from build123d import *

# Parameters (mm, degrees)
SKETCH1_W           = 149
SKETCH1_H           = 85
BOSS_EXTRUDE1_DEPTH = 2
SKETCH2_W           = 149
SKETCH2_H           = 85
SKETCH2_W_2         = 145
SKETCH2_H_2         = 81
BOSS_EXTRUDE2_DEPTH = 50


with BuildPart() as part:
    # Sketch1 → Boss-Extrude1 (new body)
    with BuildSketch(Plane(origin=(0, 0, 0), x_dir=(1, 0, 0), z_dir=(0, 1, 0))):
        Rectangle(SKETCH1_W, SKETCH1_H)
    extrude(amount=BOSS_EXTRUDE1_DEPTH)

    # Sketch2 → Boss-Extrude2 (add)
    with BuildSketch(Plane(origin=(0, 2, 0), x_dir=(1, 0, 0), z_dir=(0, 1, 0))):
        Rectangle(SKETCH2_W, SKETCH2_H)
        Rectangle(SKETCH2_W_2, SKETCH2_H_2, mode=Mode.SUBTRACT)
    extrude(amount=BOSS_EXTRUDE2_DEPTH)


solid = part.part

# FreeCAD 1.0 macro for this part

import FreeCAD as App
import Part
import Sketcher
Q = App.Units.Quantity


def add_polygon(sketch, points):
    """Adds a closed chain of lines whose ends are joined by coincident constraints."""
    first, n = sketch.GeometryCount, len(points)
    for a, b in zip(points, points[1:] + points[:1]):
        sketch.addGeometry(Part.LineSegment(App.Vector(*a, 0), App.Vector(*b, 0)), False)
    for i in range(n):
        sketch.addConstraint(Sketcher.Constraint("Coincident", first + i, 2, first + (i + 1) % n, 1))

doc = App.newDocument("Part")
body = doc.addObject("PartDesign::Body", "Body")

# Sketch on XZ plane
sketch1 = body.newObject("Sketcher::SketchObject", "Sketch")
sketch1.AttachmentSupport = (doc.getObject("XZ_Plane"), [""])
sketch1.MapMode = "FlatFace"
add_polygon(sketch1, [(-74, -42), (-74, 42), (74, 42), (74, -42)])  # lines 0-3
sketch1.addConstraint(Sketcher.Constraint("Vertical", 0))
sketch1.addConstraint(Sketcher.Constraint("Horizontal", 1))
sketch1.addConstraint(Sketcher.Constraint("Vertical", 2))
sketch1.addConstraint(Sketcher.Constraint("Horizontal", 3))
sketch1.addConstraint(Sketcher.Constraint("Symmetric", 0, 2, 2, 2, -1, 1))
sketch1.addConstraint(Sketcher.Constraint("DistanceX", 1, 1, 1, 2, Q("149 mm")))
sketch1.addConstraint(Sketcher.Constraint("DistanceY", 0, 1, 0, 2, Q("85 mm")))
pad1 = body.newObject("PartDesign::Pad", "Pad")
pad1.Profile = sketch1
pad1.Length = 2
pad1.Reversed = True

# Sketch on XZ plane
sketch2 = body.newObject("Sketcher::SketchObject", "Sketch001")
sketch2.AttachmentSupport = (doc.getObject("XZ_Plane"), [""])
sketch2.MapMode = "FlatFace"
sketch2.AttachmentOffset = App.Placement(App.Vector(0, 0, -2), App.Rotation())
add_polygon(sketch2, [(-74, -42), (-74, 42), (74, 42), (74, -42)])  # lines 0-3
add_polygon(sketch2, [(72, 40), (-72, 40), (-72, -40), (72, -40)])  # lines 4-7
sketch2.addConstraint(Sketcher.Constraint("Vertical", 0))
sketch2.addConstraint(Sketcher.Constraint("Horizontal", 1))
sketch2.addConstraint(Sketcher.Constraint("Vertical", 2))
sketch2.addConstraint(Sketcher.Constraint("Horizontal", 3))
sketch2.addConstraint(Sketcher.Constraint("Horizontal", 4))
sketch2.addConstraint(Sketcher.Constraint("Vertical", 5))
sketch2.addConstraint(Sketcher.Constraint("Horizontal", 6))
sketch2.addConstraint(Sketcher.Constraint("Vertical", 7))
sketch2.addConstraint(Sketcher.Constraint("Symmetric", 0, 2, 2, 2, -1, 1))
sketch2.addConstraint(Sketcher.Constraint("Symmetric", 4, 2, 6, 2, -1, 1))
sketch2.addConstraint(Sketcher.Constraint("DistanceX", 1, 1, 1, 2, Q("149 mm")))
sketch2.addConstraint(Sketcher.Constraint("DistanceX", 4, 2, 4, 1, Q("145 mm")))
sketch2.addConstraint(Sketcher.Constraint("DistanceY", 0, 1, 0, 2, Q("85 mm")))
sketch2.addConstraint(Sketcher.Constraint("DistanceY", 5, 2, 5, 1, Q("81 mm")))
pad2 = body.newObject("PartDesign::Pad", "Pad001")
pad2.Profile = sketch2
pad2.Length = 50
pad2.Reversed = True

doc.recompute()
